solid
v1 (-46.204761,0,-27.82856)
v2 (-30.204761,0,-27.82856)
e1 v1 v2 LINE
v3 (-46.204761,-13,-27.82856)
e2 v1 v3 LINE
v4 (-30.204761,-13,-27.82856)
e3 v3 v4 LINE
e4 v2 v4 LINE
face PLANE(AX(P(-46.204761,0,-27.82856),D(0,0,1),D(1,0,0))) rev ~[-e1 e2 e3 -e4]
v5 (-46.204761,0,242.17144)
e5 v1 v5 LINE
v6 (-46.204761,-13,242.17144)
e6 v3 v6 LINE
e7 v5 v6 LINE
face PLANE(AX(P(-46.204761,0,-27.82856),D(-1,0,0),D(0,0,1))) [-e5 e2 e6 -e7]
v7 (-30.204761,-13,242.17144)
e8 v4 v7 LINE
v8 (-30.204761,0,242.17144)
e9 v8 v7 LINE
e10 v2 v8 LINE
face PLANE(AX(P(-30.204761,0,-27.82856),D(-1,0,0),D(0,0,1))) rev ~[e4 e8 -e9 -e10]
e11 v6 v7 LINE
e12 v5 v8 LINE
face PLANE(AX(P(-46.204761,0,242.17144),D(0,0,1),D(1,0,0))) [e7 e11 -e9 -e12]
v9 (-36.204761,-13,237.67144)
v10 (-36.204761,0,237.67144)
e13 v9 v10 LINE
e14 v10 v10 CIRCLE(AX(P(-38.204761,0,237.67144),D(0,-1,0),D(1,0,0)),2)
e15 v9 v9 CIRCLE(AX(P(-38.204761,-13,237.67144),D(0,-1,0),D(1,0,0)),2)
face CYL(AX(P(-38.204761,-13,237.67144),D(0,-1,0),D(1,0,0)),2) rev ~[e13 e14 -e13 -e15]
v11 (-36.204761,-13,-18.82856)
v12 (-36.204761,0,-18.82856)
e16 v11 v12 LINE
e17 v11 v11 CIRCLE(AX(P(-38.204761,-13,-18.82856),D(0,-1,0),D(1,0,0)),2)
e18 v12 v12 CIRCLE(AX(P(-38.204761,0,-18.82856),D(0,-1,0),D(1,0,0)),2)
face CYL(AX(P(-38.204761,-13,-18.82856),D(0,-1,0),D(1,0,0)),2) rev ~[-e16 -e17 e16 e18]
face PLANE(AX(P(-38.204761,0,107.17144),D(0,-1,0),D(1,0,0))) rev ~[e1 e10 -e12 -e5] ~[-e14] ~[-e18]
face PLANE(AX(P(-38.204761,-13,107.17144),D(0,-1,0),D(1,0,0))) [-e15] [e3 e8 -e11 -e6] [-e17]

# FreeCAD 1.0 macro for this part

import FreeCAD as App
import Part
import Sketcher

V = App.Vector
Q = App.Units.Quantity

doc = App.newDocument("Part")
params = doc.addObject("Spreadsheet::Sheet", "Params")
for row, (alias, value) in enumerate([
    ("sketch1_width", "16 mm"),
    ("sketch1_height", "270 mm"),
    ("pad1_length", "13 mm"),
    ("sketch2_diameter", "4 mm"),
    ("pocket1_length", "13 mm"),
    ("sketch3_diameter", "4 mm"),
    ("pocket2_length", "13 mm"),
], start=1):
    params.set(f"A{row}", alias)
    params.set(f"B{row}", "=" + value)
    params.setAlias(f"B{row}", alias)

body = doc.addObject("PartDesign::Body", "Body")

sketch1 = body.newObject("Sketcher::SketchObject", "Sketch")
sketch1.AttachmentSupport = (doc.getObject("XZ_Plane"), [""])
sketch1.MapMode = "FlatFace"
sketch1.addGeometry([
    Part.LineSegment(V(-46.204761, 242.17144, 0), V(-46.204761, -27.82856, 0)),
    Part.LineSegment(V(-46.204761, -27.82856, 0), V(-30.204761, -27.82856, 0)),
    Part.LineSegment(V(-30.204761, -27.82856, 0), V(-30.204761, 242.17144, 0)),
    Part.LineSegment(V(-30.204761, 242.17144, 0), V(-46.204761, 242.17144, 0)),
], False)
sketch1.addConstraint([
    Sketcher.Constraint("Coincident", 0, 2, 1, 1),
    Sketcher.Constraint("Coincident", 1, 2, 2, 1),
    Sketcher.Constraint("Coincident", 2, 2, 3, 1),
    Sketcher.Constraint("Coincident", 3, 2, 0, 1),
    Sketcher.Constraint("Vertical", 0),
    Sketcher.Constraint("Horizontal", 1),
    Sketcher.Constraint("Vertical", 2),
    Sketcher.Constraint("Horizontal", 3),
    Sketcher.Constraint("DistanceX", 1, 1, 1, 2, Q("16 mm")),
    Sketcher.Constraint("DistanceY", 0, 2, 0, 1, Q("270 mm")),
    Sketcher.Constraint("DistanceX", 0, 2, -1, 1, Q("46.204761 mm")),
    Sketcher.Constraint("DistanceY", 0, 2, -1, 1, Q("27.82856 mm")),
])
sketch1.setExpression("Constraints[8]", "Params.sketch1_width")
sketch1.setExpression("Constraints[9]", "Params.sketch1_height")
pad1 = body.newObject("PartDesign::Pad", "Pad")
pad1.Profile = sketch1
pad1.setExpression("Length", "Params.pad1_length")

sketch2 = body.newObject("Sketcher::SketchObject", "Sketch001")
sketch2.AttachmentSupport = (doc.getObject("XZ_Plane"), [""])
sketch2.MapMode = "FlatFace"
sketch2.AttachmentOffset = App.Placement(V(0, 0, 13), App.Rotation())
sketch2.addGeometry(Part.Circle(V(-38.204761, -18.82856, 0), V(0, 0, 1), 2), False)
sketch2.addConstraint([
    Sketcher.Constraint("Diameter", 0, Q("4 mm")),
    Sketcher.Constraint("DistanceX", 0, 3, -1, 1, Q("38.204761 mm")),
    Sketcher.Constraint("DistanceY", 0, 3, -1, 1, Q("18.82856 mm")),
])
sketch2.setExpression("Constraints[0]", "Params.sketch2_diameter")
pocket1 = body.newObject("PartDesign::Pocket", "Pocket")
pocket1.Profile = sketch2
pocket1.setExpression("Length", "Params.pocket1_length")

sketch3 = body.newObject("Sketcher::SketchObject", "Sketch002")
sketch3.AttachmentSupport = (doc.getObject("XZ_Plane"), [""])
sketch3.MapMode = "FlatFace"
sketch3.AttachmentOffset = App.Placement(V(0, 0, 13), App.Rotation())
sketch3.addGeometry(Part.Circle(V(-38.204761, 237.67144, 0), V(0, 0, 1), 2), False)
sketch3.addConstraint([
    Sketcher.Constraint("Diameter", 0, Q("4 mm")),
    Sketcher.Constraint("DistanceX", 0, 3, -1, 1, Q("38.204761 mm")),
    Sketcher.Constraint("DistanceY", -1, 1, 0, 3, Q("237.67144 mm")),
])
sketch3.setExpression("Constraints[0]", "Params.sketch3_diameter")
pocket2 = body.newObject("PartDesign::Pocket", "Pocket001")
pocket2.Profile = sketch3
pocket2.setExpression("Length", "Params.pocket2_length")

doc.recompute()
